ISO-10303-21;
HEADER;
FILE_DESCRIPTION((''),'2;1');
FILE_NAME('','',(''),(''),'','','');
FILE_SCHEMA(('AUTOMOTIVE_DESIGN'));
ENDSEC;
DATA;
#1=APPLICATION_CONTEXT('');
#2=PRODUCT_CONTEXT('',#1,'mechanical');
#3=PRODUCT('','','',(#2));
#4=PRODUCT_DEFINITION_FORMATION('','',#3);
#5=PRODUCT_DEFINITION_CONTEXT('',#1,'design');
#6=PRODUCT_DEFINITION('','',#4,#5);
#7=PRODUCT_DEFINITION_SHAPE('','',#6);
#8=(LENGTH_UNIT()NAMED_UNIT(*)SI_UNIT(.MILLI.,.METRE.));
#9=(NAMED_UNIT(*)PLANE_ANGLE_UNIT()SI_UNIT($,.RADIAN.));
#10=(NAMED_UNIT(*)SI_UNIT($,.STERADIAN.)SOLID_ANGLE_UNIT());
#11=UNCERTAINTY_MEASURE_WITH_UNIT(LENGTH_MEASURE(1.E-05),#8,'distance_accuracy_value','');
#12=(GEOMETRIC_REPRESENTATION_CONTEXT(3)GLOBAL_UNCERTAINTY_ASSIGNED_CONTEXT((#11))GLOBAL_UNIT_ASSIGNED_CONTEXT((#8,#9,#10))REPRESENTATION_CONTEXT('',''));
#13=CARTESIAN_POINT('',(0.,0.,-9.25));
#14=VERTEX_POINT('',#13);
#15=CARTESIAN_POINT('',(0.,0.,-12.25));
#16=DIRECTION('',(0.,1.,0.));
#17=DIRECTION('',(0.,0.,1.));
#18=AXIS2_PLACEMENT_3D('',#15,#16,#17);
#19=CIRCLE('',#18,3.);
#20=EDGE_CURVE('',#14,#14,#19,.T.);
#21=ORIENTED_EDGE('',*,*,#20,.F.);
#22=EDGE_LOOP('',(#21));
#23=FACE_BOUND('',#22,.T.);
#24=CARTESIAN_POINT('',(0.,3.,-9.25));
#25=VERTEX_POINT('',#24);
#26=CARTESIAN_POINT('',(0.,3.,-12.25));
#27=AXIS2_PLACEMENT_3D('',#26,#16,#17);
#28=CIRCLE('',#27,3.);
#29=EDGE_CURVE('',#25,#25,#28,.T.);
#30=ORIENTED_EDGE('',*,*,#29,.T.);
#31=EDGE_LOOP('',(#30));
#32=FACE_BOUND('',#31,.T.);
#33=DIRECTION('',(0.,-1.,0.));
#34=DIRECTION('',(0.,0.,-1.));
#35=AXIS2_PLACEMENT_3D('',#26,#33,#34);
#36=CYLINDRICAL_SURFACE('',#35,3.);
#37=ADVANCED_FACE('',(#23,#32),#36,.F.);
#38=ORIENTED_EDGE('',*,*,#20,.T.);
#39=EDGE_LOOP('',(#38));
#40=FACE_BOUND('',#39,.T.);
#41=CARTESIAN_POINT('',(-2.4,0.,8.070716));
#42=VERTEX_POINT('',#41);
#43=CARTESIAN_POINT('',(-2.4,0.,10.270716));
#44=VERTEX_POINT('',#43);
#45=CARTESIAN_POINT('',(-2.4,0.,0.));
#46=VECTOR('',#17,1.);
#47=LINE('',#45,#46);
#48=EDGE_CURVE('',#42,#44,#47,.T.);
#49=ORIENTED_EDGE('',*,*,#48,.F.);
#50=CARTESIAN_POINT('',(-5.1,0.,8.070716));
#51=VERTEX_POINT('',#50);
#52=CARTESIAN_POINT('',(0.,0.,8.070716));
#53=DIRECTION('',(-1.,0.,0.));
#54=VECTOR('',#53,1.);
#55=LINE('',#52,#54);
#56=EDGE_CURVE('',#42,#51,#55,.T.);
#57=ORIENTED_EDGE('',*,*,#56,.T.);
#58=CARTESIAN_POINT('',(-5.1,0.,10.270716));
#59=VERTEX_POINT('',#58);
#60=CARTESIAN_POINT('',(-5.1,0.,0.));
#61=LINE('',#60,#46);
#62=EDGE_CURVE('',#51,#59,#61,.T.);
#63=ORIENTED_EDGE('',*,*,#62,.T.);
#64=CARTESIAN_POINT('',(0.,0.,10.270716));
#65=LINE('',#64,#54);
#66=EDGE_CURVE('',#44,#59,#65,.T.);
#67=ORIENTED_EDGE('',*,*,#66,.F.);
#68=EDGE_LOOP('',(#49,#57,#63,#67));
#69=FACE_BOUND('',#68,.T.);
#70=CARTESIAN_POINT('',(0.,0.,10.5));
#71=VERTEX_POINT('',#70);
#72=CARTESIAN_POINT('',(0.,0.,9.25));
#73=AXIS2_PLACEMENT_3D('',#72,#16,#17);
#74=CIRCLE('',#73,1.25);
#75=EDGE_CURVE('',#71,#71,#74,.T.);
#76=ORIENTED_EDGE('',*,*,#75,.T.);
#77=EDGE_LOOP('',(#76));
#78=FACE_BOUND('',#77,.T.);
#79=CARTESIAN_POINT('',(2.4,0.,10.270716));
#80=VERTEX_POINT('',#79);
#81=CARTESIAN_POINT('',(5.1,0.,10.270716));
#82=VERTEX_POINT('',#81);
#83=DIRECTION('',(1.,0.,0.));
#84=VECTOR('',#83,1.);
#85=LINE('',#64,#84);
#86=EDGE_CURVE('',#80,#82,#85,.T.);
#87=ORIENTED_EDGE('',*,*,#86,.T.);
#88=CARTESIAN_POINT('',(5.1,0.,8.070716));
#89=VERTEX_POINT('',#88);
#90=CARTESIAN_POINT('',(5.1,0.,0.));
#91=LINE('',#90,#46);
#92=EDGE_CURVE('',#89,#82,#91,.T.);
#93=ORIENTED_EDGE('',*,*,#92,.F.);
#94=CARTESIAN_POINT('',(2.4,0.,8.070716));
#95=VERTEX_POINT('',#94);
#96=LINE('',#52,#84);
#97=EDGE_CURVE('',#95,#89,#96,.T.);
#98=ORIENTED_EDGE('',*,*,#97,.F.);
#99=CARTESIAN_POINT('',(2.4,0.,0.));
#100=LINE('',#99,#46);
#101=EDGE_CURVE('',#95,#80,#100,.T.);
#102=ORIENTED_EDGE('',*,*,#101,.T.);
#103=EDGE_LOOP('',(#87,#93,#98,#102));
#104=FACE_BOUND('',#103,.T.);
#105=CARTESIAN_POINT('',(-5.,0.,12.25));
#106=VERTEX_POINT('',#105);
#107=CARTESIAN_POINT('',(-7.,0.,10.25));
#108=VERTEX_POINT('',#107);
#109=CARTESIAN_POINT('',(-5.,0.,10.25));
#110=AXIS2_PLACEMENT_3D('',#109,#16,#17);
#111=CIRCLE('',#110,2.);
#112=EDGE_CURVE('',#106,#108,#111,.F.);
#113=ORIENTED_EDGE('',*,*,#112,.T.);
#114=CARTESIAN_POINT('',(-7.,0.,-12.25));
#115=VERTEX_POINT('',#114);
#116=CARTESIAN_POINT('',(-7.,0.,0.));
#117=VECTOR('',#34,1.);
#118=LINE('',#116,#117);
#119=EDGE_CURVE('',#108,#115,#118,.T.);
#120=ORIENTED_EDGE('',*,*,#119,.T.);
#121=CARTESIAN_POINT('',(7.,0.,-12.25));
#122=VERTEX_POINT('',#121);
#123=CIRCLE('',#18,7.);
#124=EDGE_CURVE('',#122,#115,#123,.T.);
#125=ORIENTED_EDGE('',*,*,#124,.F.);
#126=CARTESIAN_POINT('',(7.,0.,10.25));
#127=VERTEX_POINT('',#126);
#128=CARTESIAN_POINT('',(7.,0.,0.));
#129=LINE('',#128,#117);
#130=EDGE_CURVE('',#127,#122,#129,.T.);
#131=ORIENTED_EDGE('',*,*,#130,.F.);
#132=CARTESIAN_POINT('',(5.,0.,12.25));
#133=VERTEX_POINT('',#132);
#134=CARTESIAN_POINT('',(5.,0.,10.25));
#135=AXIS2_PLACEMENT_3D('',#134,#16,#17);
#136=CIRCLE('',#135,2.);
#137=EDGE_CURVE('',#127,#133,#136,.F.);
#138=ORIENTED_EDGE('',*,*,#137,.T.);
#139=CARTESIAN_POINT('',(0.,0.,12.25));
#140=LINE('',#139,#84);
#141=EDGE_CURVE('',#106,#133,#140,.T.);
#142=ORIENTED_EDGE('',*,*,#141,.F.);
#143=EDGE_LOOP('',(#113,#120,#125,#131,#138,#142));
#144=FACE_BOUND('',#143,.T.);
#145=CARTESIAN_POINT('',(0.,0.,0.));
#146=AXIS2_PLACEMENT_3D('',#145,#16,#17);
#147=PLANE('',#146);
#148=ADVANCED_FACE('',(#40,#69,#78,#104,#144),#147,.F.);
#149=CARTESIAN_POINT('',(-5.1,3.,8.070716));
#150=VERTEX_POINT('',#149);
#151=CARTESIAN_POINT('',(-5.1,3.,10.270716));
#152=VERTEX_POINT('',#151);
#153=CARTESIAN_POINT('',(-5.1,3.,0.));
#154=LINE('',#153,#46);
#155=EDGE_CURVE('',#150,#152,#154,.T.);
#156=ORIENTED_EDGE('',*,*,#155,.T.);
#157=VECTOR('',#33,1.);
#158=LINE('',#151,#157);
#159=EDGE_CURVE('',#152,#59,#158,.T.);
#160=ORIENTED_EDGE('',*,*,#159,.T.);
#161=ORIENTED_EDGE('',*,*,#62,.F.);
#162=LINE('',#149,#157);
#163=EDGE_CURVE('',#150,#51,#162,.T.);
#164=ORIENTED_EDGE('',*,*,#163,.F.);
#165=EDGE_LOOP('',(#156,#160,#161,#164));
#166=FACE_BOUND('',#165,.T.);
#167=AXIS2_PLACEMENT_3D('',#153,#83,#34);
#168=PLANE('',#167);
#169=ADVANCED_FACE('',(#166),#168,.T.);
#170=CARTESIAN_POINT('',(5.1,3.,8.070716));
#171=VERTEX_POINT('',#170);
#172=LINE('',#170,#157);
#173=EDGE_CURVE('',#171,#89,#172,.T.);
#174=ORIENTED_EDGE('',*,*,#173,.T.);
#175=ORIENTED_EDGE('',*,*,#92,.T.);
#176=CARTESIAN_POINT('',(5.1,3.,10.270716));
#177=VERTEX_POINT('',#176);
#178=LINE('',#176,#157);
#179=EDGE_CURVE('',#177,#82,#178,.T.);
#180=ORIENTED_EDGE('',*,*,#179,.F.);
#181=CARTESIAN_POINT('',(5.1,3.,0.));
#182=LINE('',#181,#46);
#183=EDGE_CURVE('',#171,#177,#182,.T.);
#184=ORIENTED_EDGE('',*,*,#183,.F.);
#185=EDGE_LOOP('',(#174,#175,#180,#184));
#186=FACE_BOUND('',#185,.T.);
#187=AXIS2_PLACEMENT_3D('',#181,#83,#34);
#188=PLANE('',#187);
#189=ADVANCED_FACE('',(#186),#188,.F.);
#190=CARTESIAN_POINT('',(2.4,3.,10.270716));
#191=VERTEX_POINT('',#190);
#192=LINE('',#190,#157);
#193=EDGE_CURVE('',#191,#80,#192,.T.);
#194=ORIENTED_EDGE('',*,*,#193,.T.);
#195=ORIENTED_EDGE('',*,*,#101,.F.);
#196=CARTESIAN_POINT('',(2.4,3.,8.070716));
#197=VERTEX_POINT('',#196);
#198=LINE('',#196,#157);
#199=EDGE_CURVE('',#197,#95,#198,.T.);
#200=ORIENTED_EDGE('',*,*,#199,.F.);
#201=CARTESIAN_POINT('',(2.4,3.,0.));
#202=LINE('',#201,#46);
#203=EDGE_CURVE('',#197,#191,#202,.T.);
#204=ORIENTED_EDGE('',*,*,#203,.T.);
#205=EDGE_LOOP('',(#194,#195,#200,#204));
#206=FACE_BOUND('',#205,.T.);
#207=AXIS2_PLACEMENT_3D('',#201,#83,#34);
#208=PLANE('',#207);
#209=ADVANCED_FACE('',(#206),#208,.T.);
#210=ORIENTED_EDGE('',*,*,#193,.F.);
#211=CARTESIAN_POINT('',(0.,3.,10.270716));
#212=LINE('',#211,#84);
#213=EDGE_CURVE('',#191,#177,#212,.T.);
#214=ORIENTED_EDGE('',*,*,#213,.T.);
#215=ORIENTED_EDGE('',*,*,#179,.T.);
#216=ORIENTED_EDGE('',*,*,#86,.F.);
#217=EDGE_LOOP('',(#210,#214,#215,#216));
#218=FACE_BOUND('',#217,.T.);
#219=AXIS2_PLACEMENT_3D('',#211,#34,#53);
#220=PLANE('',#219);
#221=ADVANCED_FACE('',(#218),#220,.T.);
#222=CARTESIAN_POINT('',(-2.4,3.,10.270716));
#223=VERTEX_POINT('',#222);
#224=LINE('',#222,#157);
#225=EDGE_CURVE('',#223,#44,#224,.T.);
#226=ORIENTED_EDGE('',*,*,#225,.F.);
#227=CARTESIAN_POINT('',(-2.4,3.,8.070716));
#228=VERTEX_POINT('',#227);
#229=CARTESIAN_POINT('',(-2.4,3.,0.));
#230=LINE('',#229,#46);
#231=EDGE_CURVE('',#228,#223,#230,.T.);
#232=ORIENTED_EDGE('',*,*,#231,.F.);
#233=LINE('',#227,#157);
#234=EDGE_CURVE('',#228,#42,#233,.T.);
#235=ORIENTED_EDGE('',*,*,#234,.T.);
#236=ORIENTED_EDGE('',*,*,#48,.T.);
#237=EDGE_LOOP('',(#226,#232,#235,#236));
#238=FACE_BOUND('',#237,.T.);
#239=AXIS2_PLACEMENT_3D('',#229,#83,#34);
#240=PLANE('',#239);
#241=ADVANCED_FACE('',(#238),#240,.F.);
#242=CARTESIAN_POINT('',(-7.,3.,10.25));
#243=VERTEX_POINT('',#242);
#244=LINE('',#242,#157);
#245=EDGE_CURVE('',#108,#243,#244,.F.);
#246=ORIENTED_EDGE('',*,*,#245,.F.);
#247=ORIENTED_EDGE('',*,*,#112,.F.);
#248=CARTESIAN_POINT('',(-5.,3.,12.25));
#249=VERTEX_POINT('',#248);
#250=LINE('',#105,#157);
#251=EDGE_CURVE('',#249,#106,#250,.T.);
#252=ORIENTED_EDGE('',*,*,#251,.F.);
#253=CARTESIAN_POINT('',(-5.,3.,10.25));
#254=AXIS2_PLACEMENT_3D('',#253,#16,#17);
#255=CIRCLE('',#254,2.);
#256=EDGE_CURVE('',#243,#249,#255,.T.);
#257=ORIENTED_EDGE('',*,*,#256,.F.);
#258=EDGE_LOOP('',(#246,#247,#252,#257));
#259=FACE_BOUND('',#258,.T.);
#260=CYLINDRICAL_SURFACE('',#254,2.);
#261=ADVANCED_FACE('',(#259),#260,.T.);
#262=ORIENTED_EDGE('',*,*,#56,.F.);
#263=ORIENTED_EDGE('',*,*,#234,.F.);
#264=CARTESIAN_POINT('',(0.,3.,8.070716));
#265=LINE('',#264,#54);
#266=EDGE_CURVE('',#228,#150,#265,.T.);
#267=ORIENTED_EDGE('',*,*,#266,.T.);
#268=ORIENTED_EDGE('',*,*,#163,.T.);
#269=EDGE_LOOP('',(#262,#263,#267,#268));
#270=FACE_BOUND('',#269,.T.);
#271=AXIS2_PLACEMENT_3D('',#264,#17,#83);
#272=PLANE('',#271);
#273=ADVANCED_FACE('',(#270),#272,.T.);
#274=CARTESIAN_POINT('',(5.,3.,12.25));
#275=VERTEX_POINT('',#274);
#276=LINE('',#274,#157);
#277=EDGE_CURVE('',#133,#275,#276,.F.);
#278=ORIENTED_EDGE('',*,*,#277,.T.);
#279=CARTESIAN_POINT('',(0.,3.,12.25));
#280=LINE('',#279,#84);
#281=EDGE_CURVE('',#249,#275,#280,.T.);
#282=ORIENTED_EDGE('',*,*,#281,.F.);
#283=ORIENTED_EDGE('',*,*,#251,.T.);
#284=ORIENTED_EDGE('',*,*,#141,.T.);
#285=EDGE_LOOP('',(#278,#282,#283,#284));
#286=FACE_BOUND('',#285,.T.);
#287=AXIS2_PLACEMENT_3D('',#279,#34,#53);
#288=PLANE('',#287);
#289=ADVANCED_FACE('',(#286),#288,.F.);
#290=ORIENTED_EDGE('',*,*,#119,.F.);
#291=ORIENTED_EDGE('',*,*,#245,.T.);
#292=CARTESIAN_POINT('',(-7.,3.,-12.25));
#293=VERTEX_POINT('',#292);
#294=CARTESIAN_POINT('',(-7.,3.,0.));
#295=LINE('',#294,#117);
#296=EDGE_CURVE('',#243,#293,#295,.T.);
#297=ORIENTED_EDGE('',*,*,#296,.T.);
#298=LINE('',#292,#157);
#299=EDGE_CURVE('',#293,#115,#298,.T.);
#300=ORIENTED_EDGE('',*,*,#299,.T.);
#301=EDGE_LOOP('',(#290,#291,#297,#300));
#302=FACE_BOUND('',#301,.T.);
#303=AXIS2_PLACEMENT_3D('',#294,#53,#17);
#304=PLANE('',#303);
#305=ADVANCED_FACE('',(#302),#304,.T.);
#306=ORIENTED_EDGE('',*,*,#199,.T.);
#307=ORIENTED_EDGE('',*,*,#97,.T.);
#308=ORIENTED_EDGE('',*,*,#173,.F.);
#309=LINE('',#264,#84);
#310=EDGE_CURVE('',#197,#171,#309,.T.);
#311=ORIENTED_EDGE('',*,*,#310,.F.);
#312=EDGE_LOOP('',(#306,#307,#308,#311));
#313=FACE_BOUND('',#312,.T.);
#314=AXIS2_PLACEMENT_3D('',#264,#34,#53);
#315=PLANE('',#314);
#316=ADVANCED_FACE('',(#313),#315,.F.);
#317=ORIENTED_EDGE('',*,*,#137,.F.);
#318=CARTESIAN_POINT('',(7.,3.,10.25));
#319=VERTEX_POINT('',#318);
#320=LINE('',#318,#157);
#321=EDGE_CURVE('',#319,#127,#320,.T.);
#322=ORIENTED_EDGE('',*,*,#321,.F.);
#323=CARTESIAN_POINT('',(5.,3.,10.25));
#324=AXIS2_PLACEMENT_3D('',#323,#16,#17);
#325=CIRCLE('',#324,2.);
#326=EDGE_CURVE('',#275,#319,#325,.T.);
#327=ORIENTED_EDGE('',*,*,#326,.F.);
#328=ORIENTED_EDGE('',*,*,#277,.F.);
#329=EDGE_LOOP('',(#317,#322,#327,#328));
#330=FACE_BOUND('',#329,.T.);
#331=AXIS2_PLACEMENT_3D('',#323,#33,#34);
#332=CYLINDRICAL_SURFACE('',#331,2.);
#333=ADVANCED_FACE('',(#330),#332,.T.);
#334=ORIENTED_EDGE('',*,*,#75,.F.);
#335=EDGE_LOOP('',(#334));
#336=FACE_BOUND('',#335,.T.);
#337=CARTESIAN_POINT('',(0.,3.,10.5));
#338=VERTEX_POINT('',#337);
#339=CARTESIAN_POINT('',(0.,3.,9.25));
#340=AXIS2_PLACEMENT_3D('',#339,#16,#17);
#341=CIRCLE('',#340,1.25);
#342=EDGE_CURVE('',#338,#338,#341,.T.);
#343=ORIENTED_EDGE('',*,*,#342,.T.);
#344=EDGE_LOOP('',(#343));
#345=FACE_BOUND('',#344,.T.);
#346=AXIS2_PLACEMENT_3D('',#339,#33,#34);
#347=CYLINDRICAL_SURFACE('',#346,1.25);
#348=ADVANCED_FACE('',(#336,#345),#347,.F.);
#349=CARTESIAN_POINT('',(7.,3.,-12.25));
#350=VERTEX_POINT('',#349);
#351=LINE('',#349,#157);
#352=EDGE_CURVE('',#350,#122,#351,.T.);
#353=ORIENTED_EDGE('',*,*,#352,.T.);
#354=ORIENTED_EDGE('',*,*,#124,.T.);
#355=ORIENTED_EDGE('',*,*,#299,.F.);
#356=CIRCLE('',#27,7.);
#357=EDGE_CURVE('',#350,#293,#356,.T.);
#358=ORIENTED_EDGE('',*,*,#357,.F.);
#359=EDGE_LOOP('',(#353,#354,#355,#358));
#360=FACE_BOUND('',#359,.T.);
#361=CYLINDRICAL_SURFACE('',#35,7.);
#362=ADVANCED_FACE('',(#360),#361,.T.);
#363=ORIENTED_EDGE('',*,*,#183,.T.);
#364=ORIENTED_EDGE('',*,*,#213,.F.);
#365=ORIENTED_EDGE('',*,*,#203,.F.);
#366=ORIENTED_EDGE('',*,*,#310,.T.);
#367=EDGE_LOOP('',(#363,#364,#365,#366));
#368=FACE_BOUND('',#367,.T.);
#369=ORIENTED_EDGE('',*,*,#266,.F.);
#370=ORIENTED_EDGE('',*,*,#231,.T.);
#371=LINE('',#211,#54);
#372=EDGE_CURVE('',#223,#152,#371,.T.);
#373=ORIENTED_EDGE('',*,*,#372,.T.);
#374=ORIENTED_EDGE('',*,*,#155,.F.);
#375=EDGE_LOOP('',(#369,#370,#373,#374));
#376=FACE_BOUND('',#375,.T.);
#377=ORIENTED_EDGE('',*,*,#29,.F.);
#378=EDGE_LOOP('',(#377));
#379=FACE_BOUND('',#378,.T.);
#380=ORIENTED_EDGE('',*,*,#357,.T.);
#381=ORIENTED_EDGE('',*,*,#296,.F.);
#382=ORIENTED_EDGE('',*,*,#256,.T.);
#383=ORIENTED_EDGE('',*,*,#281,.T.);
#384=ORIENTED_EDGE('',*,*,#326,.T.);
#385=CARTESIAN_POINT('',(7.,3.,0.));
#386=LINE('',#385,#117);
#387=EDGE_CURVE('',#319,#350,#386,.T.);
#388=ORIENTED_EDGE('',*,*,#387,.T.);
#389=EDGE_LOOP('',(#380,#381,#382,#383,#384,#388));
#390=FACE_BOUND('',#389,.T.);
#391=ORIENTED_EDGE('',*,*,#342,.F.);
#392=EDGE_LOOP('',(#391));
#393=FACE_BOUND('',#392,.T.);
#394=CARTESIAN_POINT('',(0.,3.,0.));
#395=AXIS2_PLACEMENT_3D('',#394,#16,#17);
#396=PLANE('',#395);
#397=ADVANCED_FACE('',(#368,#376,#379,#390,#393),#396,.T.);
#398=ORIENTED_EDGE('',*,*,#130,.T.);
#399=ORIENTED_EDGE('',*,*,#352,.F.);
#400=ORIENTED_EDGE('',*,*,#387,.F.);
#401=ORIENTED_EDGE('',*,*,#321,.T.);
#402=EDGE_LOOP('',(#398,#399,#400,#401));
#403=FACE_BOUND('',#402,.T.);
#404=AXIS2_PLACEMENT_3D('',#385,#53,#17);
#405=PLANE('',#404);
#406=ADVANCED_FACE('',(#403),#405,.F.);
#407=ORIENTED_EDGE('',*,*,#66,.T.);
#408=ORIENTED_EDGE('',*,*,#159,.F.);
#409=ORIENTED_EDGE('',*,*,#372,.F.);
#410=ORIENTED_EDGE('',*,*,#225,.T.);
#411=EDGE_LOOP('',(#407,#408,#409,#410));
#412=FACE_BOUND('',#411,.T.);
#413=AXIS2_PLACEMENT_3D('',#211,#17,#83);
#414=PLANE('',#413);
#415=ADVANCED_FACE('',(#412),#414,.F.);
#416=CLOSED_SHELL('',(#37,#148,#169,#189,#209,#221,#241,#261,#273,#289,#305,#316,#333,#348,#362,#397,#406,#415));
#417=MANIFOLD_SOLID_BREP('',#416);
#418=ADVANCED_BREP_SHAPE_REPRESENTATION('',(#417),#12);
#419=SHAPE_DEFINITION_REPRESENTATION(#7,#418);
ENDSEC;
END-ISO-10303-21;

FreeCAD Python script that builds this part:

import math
import FreeCAD as App
import Part
import Sketcher
from FreeCAD import Vector
Q = App.Units.Quantity


def edges_at(feature, points):
    """Names of the edges that pass closest to the given points."""
    edges = feature.Shape.Edges
    near = lambda p: min(range(len(edges)), key=lambda i: edges[i].distToShape(Part.Vertex(*p))[0])
    return sorted({f"Edge{near(p) + 1}" for p in points})

doc = App.newDocument("Part")
body = doc.addObject("PartDesign::Body", "Body")

sketch1 = body.newObject("Sketcher::SketchObject", "Sketch")
sketch1.AttachmentSupport = (doc.getObject("XZ_Plane"), [""])
sketch1.MapMode = "FlatFace"
sketch1.addGeometry([
    Part.ArcOfCircle(Part.Circle(Vector(0, -12.3, 0), Vector(0, 0, 1), 7), math.radians(90), math.radians(180)),
    Part.ArcOfCircle(Part.Circle(Vector(0, -12.3, 0), Vector(0, 0, 1), 7), math.radians(0), math.radians(90)),
    Part.ArcOfCircle(Part.Circle(Vector(0, -12.2, 0), Vector(0, 0, 1), 7), math.radians(180), math.radians(360)),
    Part.ArcOfCircle(Part.Circle(Vector(0, -12.2, 0), Vector(0, 0, 1), 3), math.radians(90), math.radians(180)),
    Part.ArcOfCircle(Part.Circle(Vector(0, -12.2, 0), Vector(0, 0, 1), 3), math.radians(180), math.radians(360)),
    Part.ArcOfCircle(Part.Circle(Vector(0, -12.2, 0), Vector(0, 0, 1), 3), math.radians(0), math.radians(90)),
], False)
sketch1.addConstraint([
    Sketcher.Constraint("Tangent", 0, 1, 1, 2),
    Sketcher.Constraint("Tangent", 1, 1, 2, 2),
    Sketcher.Constraint("Tangent", 2, 1, 0, 2),
    Sketcher.Constraint("Tangent", 3, 2, 4, 1),
    Sketcher.Constraint("Tangent", 4, 2, 5, 1),
    Sketcher.Constraint("Tangent", 5, 2, 3, 1),
    Sketcher.Constraint("Coincident", 3, 3, 0, 3),
    Sketcher.Constraint("Symmetric", 1, 1, 2, 1, -2),
    Sketcher.Constraint("PointOnObject", 0, 1, -2),
    Sketcher.Constraint("PointOnObject", 5, 2, -2),
    Sketcher.Constraint("Horizontal", 5, 3, 1, 1),
    Sketcher.Constraint("Horizontal", 2, 1, 3, 2),
    Sketcher.Constraint("Horizontal", 3, 2, 4, 2),
    Sketcher.Constraint("Radius", 0, Q("7 mm")),
    Sketcher.Constraint("Radius", 3, Q("3 mm")),
    Sketcher.Constraint("DistanceY", 0, 3, -1, 1, Q("12.25 mm")),
])
pad1 = body.newObject("PartDesign::Pad", "Pad")
pad1.Profile = sketch1
pad1.Length = 3
pad1.Reversed = True

sketch2 = body.newObject("Sketcher::SketchObject", "Sketch001")
sketch2.AttachmentSupport = (doc.getObject("XZ_Plane"), [""])
sketch2.MapMode = "FlatFace"
sketch2.addGeometry([
    Part.ArcOfCircle(Part.Circle(Vector(0, -12.3, 0), Vector(0, 0, 1), 7), math.radians(0), math.radians(90)),
    Part.ArcOfCircle(Part.Circle(Vector(0, -12.3, 0), Vector(0, 0, 1), 7), math.radians(90), math.radians(180)),
    Part.LineSegment(Vector(-7, -12.2, 0), Vector(-7, 12.2, 0)),
    Part.LineSegment(Vector(-7, 12.2, 0), Vector(7, 12.2, 0)),
    Part.LineSegment(Vector(7, 12.2, 0), Vector(7, -12.2, 0)),
    Part.LineSegment(Vector(-2.4, 10.3, 0), Vector(-5.1, 10.3, 0)),
    Part.LineSegment(Vector(-5.1, 10.3, 0), Vector(-5.1, 8.1, 0)),
    Part.LineSegment(Vector(-5.1, 8.1, 0), Vector(-2.4, 8.1, 0)),
    Part.LineSegment(Vector(-2.4, 8.1, 0), Vector(-2.4, 10.3, 0)),
    Part.Circle(Vector(0, 9.2, 0), Vector(0, 0, 1), 1.2),
    Part.LineSegment(Vector(5.1, 10.3, 0), Vector(2.4, 10.3, 0)),
    Part.LineSegment(Vector(2.4, 10.3, 0), Vector(2.4, 8.1, 0)),
    Part.LineSegment(Vector(2.4, 8.1, 0), Vector(5.1, 8.1, 0)),
    Part.LineSegment(Vector(5.1, 8.1, 0), Vector(5.1, 10.3, 0)),
], False)
sketch2.addConstraint([
    Sketcher.Constraint("Tangent", 0, 2, 1, 1),
    Sketcher.Constraint("Tangent", 1, 2, 2, 1),
    Sketcher.Constraint("Coincident", 2, 2, 3, 1),
    Sketcher.Constraint("Coincident", 3, 2, 4, 1),
    Sketcher.Constraint("Tangent", 4, 2, 0, 1),
    Sketcher.Constraint("Coincident", 5, 2, 6, 1),
    Sketcher.Constraint("Coincident", 6, 2, 7, 1),
    Sketcher.Constraint("Coincident", 7, 2, 8, 1),
    Sketcher.Constraint("Coincident", 8, 2, 5, 1),
    Sketcher.Constraint("Coincident", 10, 2, 11, 1),
    Sketcher.Constraint("Coincident", 11, 2, 12, 1),
    Sketcher.Constraint("Coincident", 12, 2, 13, 1),
    Sketcher.Constraint("Coincident", 13, 2, 10, 1),
    Sketcher.Constraint("Vertical", 2),
    Sketcher.Constraint("Horizontal", 3),
    Sketcher.Constraint("Vertical", 4),
    Sketcher.Constraint("Horizontal", 5),
    Sketcher.Constraint("Vertical", 6),
    Sketcher.Constraint("Horizontal", 7),
    Sketcher.Constraint("Vertical", 8),
    Sketcher.Constraint("Horizontal", 10),
    Sketcher.Constraint("Vertical", 11),
    Sketcher.Constraint("Horizontal", 12),
    Sketcher.Constraint("Vertical", 13),
    Sketcher.Constraint("Equal", 0, 1),
    Sketcher.Constraint("Symmetric", 1, 2, 3, 2, -1, 1),
    Sketcher.Constraint("Symmetric", 8, 2, 10, 2, -2),
    Sketcher.Constraint("Symmetric", 6, 2, 12, 2, -2),
    Sketcher.Constraint("PointOnObject", 9, 3, -2),
    Sketcher.Constraint("PointOnObject", 0, 2, -2),
    Sketcher.Constraint("Radius", 0, Q("7 mm")),
    Sketcher.Constraint("Diameter", 9, Q("2.5 mm")),
    Sketcher.Constraint("DistanceX", 5, 2, 5, 1, Q("2.7 mm")),
    Sketcher.Constraint("DistanceY", 2, 1, 2, 2, Q("24.5 mm")),
    Sketcher.Constraint("DistanceY", 6, 2, 6, 1, Q("2.2 mm")),
    Sketcher.Constraint("DistanceY", 9, 3, 2, 2, Q("3 mm")),
    Sketcher.Constraint("DistanceX", 5, 2, -1, 1, Q("5.1 mm")),
    Sketcher.Constraint("DistanceY", -1, 1, 5, 2, Q("10.270716 mm")),
])
pad2 = body.newObject("PartDesign::Pad", "Pad001")
pad2.Profile = sketch2
pad2.Length = 3
pad2.Reversed = True
doc.recompute()

fillet = body.newObject("PartDesign::Fillet", "Fillet")
fillet.Base = (pad2, edges_at(pad2, [(-7, 1.5, 12.25), (7, 1.5, 12.25)]))
fillet.Radius = 2

doc.recompute()
